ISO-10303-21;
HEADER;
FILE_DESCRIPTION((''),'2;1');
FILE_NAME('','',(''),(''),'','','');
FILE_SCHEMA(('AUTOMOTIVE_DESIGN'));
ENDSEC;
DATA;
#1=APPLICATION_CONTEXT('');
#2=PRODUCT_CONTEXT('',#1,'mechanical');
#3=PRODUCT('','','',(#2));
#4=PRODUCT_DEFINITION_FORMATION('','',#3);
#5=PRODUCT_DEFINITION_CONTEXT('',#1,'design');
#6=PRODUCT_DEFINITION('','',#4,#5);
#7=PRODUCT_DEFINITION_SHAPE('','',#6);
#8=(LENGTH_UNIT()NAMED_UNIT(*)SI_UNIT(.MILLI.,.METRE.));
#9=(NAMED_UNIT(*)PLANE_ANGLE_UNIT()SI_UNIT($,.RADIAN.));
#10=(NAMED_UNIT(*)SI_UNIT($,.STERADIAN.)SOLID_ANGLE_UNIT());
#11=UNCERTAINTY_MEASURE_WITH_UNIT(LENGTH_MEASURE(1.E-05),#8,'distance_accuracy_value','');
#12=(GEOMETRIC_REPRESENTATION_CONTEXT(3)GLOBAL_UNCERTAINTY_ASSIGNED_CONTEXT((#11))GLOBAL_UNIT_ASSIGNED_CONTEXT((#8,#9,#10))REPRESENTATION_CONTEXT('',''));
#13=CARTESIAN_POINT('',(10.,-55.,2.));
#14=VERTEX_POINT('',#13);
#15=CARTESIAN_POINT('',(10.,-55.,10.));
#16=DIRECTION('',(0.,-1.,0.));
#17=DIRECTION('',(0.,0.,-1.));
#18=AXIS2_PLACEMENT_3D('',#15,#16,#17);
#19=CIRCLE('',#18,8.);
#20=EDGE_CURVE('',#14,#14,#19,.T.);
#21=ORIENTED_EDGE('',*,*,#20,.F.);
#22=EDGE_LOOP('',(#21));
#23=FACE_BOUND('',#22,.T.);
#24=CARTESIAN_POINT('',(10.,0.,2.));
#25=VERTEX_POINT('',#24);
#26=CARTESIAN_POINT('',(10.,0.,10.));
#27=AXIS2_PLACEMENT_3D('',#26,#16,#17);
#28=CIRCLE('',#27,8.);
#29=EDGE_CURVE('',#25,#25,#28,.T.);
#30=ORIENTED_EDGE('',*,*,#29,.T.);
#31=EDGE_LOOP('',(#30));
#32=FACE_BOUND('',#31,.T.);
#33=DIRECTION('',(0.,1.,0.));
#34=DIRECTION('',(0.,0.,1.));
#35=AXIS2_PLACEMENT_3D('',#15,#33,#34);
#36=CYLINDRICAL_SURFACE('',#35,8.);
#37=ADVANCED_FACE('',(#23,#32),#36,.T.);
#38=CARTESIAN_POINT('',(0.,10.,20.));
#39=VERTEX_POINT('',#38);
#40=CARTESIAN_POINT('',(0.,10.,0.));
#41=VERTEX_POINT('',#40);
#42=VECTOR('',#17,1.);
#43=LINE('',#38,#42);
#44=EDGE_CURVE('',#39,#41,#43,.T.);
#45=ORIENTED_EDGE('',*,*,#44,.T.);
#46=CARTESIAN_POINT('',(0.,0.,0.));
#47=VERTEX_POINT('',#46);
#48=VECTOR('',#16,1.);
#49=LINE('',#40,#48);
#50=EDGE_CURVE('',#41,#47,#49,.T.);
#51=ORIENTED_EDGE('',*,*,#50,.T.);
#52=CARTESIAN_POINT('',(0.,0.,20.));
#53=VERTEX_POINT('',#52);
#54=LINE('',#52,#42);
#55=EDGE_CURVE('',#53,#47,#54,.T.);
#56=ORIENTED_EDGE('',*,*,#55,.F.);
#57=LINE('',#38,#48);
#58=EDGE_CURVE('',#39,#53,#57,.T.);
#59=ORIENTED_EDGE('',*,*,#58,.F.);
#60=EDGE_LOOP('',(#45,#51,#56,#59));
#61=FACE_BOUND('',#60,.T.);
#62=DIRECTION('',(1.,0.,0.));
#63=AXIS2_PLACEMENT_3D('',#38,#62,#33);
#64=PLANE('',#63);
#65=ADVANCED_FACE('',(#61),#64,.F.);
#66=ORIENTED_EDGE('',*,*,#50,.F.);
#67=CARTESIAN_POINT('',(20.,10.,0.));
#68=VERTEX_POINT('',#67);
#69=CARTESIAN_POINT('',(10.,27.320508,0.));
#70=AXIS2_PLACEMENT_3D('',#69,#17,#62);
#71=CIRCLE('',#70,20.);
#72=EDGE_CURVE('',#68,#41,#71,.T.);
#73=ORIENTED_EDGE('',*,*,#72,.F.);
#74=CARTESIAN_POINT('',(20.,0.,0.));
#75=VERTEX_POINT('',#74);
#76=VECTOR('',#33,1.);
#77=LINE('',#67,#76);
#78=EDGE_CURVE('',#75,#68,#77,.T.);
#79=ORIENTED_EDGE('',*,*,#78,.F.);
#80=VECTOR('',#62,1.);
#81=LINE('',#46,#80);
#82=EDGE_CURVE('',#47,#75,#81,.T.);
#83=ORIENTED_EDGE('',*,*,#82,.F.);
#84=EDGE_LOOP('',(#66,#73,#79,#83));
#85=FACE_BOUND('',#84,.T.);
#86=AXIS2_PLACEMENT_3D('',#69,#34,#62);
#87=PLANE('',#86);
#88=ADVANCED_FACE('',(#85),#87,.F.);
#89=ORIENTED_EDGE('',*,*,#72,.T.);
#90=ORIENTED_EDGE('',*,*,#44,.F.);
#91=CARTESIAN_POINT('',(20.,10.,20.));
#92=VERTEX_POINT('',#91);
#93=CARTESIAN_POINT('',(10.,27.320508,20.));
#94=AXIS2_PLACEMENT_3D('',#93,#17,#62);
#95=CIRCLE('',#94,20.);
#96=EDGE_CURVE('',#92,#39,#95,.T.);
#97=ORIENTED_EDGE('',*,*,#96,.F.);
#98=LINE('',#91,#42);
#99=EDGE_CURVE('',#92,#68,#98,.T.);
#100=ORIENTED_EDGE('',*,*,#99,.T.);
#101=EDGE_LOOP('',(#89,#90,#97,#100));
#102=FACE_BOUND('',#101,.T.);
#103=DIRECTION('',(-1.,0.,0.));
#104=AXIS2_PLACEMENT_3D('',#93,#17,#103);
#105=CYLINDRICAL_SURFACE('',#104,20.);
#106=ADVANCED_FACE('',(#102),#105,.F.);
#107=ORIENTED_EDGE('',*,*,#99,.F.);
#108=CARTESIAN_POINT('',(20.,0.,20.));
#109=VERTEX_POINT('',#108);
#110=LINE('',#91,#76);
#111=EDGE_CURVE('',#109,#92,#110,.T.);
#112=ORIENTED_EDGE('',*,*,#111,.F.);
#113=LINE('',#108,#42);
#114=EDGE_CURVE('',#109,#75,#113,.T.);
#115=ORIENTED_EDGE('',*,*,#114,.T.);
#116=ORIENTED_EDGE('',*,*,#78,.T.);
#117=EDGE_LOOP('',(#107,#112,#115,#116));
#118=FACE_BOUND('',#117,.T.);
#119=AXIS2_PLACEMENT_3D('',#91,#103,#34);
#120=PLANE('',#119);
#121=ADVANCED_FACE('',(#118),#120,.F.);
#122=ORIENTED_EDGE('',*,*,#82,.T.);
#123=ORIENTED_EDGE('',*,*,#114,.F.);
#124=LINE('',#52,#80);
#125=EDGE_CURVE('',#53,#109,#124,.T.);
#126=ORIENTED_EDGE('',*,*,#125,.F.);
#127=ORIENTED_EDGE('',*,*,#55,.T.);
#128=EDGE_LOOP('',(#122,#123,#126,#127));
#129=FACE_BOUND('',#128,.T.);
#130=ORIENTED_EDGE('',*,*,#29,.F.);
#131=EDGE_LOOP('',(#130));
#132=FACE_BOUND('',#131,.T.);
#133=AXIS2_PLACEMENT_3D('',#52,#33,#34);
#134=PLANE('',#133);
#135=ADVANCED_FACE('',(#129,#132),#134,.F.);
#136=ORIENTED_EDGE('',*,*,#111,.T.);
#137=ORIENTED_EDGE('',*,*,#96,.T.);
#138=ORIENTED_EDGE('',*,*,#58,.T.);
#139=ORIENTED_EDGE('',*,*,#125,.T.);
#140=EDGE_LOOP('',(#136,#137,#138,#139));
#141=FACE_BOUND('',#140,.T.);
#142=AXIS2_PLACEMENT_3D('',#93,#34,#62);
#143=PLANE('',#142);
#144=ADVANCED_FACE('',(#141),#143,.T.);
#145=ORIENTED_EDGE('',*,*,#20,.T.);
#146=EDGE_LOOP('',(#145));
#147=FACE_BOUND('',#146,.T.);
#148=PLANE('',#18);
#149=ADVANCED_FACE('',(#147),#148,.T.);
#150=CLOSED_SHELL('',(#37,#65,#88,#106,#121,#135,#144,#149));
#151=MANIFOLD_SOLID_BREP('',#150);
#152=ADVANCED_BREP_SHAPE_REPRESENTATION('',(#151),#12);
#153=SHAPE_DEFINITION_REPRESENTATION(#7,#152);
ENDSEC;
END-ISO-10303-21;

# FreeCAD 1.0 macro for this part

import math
import FreeCAD as App
import Part
import Sketcher
Q = App.Units.Quantity

doc = App.newDocument("Part")
body = doc.addObject("PartDesign::Body", "Body")

# Sketch on XY plane
sketch1 = doc.addObject("Sketcher::SketchObject", "Sketch")
body.addObject(sketch1)
sketch1.AttachmentSupport = (doc.XY_Plane, [""])
sketch1.MapMode = "FlatFace"
sketch1.addGeometry([
    Part.LineSegment(App.Vector(0, 10, 0), App.Vector(0, 0, 0)),
    Part.LineSegment(App.Vector(0, 0, 0), App.Vector(20, 0, 0)),
    Part.LineSegment(App.Vector(20, 0, 0), App.Vector(20, 10, 0)),
    Part.ArcOfCircle(Part.Circle(App.Vector(10, 27, 0), App.Vector(0, 0, 1), 20), math.radians(-120), math.radians(-60)),
], False)
sketch1.addConstraint([
    Sketcher.Constraint("Coincident", 0, 2, 1, 1),
    Sketcher.Constraint("Coincident", 1, 2, 2, 1),
    Sketcher.Constraint("Coincident", 2, 2, 3, 2),
    Sketcher.Constraint("Coincident", 3, 1, 0, 1),
    Sketcher.Constraint("Vertical", 0),
    Sketcher.Constraint("Horizontal", 1),
    Sketcher.Constraint("Vertical", 2),
    Sketcher.Constraint("Coincident", 0, 2, -1, 1),
    Sketcher.Constraint("Horizontal", 2, 2, 3, 1),
    Sketcher.Constraint("Radius", 3, Q("20 mm")),
    Sketcher.Constraint("DistanceX", 1, 1, 1, 2, Q("20 mm")),
    Sketcher.Constraint("DistanceY", 0, 2, 0, 1, Q("10 mm")),
])
pad1 = doc.addObject("PartDesign::Pad", "Pad")
body.addObject(pad1)
pad1.Profile = sketch1
pad1.Length = 20

# Sketch on XZ plane
sketch2 = doc.addObject("Sketcher::SketchObject", "Sketch001")
body.addObject(sketch2)
sketch2.AttachmentSupport = (doc.XZ_Plane, [""])
sketch2.MapMode = "FlatFace"
sketch2.addGeometry(Part.Circle(App.Vector(10, 10, 0), App.Vector(0, 0, 1), 8), False)
sketch2.addConstraint([
    Sketcher.Constraint("Diameter", 0, Q("16 mm")),
    Sketcher.Constraint("DistanceX", -1, 1, 0, 3, Q("10 mm")),
    Sketcher.Constraint("DistanceY", -1, 1, 0, 3, Q("10 mm")),
])
pad2 = doc.addObject("PartDesign::Pad", "Pad001")
body.addObject(pad2)
pad2.Profile = sketch2
pad2.Length = 55

doc.recompute()
